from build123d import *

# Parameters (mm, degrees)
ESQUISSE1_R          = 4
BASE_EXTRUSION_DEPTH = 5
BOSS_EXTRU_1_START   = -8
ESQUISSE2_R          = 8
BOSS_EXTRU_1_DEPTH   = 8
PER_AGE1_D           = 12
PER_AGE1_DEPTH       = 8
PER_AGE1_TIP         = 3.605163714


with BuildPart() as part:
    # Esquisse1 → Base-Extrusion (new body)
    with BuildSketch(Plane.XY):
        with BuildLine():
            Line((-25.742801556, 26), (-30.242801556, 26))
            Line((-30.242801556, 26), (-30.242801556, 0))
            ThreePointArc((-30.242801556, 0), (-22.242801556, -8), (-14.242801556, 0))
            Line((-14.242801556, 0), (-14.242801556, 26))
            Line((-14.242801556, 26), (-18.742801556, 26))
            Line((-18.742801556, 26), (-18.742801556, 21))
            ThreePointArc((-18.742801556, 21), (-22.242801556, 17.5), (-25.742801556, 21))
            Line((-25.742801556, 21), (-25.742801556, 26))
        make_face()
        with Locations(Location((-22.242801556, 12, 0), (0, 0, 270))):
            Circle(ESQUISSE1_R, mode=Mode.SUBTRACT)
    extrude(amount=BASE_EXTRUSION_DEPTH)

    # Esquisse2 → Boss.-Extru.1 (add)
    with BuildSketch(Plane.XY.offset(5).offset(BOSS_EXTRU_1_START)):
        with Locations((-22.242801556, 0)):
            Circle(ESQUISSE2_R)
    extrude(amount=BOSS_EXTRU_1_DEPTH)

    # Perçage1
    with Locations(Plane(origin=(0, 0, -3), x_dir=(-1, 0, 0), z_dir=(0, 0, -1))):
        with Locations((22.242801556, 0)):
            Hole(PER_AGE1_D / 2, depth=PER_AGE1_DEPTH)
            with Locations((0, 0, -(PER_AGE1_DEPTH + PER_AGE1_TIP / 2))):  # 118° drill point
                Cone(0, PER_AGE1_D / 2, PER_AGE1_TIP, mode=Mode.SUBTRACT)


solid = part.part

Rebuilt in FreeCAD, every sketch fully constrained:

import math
import FreeCAD as App
import Part
import Sketcher
Q = App.Units.Quantity

doc = App.newDocument("Part")
body = doc.addObject("PartDesign::Body", "Body")

# Sketch on XY plane
sketch1 = doc.addObject("Sketcher::SketchObject", "Sketch")
body.addObject(sketch1)
sketch1.AttachmentSupport = (doc.XY_Plane, [""])
sketch1.MapMode = "FlatFace"
sketch1.addGeometry([
    Part.LineSegment(App.Vector(-25.742802, 26, 0), App.Vector(-30.242802, 26, 0)),  # 0
    Part.LineSegment(App.Vector(-30.242802, 26, 0), App.Vector(-30.242802, 0, 0)),  # 1
    Part.ArcOfCircle(Part.Circle(App.Vector(-22.242802, 0, 0), App.Vector(0, 0, 1), 8), math.radians(180), math.radians(360)),  # 2
    Part.LineSegment(App.Vector(-14.242802, 0, 0), App.Vector(-14.242802, 26, 0)),  # 3
    Part.LineSegment(App.Vector(-14.242802, 26, 0), App.Vector(-18.742802, 26, 0)),  # 4
    Part.LineSegment(App.Vector(-18.742802, 26, 0), App.Vector(-18.742802, 21, 0)),  # 5
    Part.ArcOfCircle(Part.Circle(App.Vector(-22.242802, 21, 0), App.Vector(0, 0, 1), 3.5), math.radians(180), math.radians(360)),  # 6
    Part.LineSegment(App.Vector(-25.742802, 21, 0), App.Vector(-25.742802, 26, 0)),  # 7
    Part.Circle(App.Vector(-22.242802, 12, 0), App.Vector(0, 0, 1), 4),  # 8
], False)
sketch1.addConstraint([
    Sketcher.Constraint("Coincident", 0, 2, 1, 1),
    Sketcher.Constraint("Tangent", 1, 2, 2, 1),
    Sketcher.Constraint("Tangent", 2, 2, 3, 1),
    Sketcher.Constraint("Coincident", 3, 2, 4, 1),
    Sketcher.Constraint("Coincident", 4, 2, 5, 1),
    Sketcher.Constraint("Tangent", 5, 2, 6, 2),
    Sketcher.Constraint("Tangent", 6, 1, 7, 1),
    Sketcher.Constraint("Coincident", 7, 2, 0, 1),
    Sketcher.Constraint("Horizontal", 0),
    Sketcher.Constraint("Vertical", 1),
    Sketcher.Constraint("Vertical", 3),
    Sketcher.Constraint("Horizontal", 4),
    Sketcher.Constraint("Vertical", 5),
    Sketcher.Constraint("Vertical", 7),
    Sketcher.Constraint("PointOnObject", 2, 3, -1),
    Sketcher.Constraint("Horizontal", 0, 2, 3, 2),
    Sketcher.Constraint("Vertical", 2, 3, 6, 3),
    Sketcher.Constraint("Vertical", 6, 3, 8, 3),
    Sketcher.Constraint("Diameter", 8, Q("8 mm")),
    Sketcher.Constraint("Radius", 2, Q("8 mm")),
    Sketcher.Constraint("Radius", 6, Q("3.5 mm")),
    Sketcher.Constraint("DistanceY", 1, 2, 1, 1, Q("26 mm")),
    Sketcher.Constraint("DistanceY", 5, 2, 5, 1, Q("5 mm")),
    Sketcher.Constraint("DistanceY", -1, 1, 8, 3, Q("12 mm")),
    Sketcher.Constraint("DistanceX", 2, 3, -1, 1, Q("22.242802 mm")),
])
pad1 = doc.addObject("PartDesign::Pad", "Pad")
body.addObject(pad1)
pad1.Profile = sketch1
pad1.Length = 5

# Sketch on XY plane
sketch2 = doc.addObject("Sketcher::SketchObject", "Sketch001")
body.addObject(sketch2)
sketch2.AttachmentSupport = (doc.XY_Plane, [""])
sketch2.MapMode = "FlatFace"
sketch2.AttachmentOffset = App.Placement(App.Vector(0, 0, -3), App.Rotation())
sketch2.addGeometry(Part.Circle(App.Vector(-22.242802, 0, 0), App.Vector(0, 0, 1), 8), False)
sketch2.addConstraint([
    Sketcher.Constraint("PointOnObject", 0, 3, -1),
    Sketcher.Constraint("Diameter", 0, Q("16 mm")),
    Sketcher.Constraint("DistanceX", 0, 3, -1, 1, Q("22.242802 mm")),
])
pad2 = doc.addObject("PartDesign::Pad", "Pad001")
body.addObject(pad2)
pad2.Profile = sketch2
pad2.Length = 8

# Sketch on XY plane
sketch3 = doc.addObject("Sketcher::SketchObject", "Sketch002")
body.addObject(sketch3)
sketch3.AttachmentSupport = (doc.XY_Plane, [""])
sketch3.MapMode = "FlatFace"
sketch3.AttachmentOffset = App.Placement(App.Vector(0, 0, -3), App.Rotation())
sketch3.addGeometry(Part.Circle(App.Vector(-22.242802, 0, 0), App.Vector(0, 0, 1), 6), False)
sketch3.addConstraint([
    Sketcher.Constraint("PointOnObject", 0, 3, -1),
    Sketcher.Constraint("Diameter", 0, Q("12 mm")),
    Sketcher.Constraint("DistanceX", 0, 3, -1, 1, Q("22.242802 mm")),
])
doc.recompute()
hole = doc.addObject("PartDesign::Hole", "Hole")
body.addObject(hole)
hole.Profile = sketch3
hole.ThreadType = "None"
hole.Diameter = 12
hole.DepthType = "Dimension"
hole.Depth = 8
hole.DrillPoint = "Angled"
hole.DrillPointAngle = 118
hole.Reversed = True

doc.recompute()
